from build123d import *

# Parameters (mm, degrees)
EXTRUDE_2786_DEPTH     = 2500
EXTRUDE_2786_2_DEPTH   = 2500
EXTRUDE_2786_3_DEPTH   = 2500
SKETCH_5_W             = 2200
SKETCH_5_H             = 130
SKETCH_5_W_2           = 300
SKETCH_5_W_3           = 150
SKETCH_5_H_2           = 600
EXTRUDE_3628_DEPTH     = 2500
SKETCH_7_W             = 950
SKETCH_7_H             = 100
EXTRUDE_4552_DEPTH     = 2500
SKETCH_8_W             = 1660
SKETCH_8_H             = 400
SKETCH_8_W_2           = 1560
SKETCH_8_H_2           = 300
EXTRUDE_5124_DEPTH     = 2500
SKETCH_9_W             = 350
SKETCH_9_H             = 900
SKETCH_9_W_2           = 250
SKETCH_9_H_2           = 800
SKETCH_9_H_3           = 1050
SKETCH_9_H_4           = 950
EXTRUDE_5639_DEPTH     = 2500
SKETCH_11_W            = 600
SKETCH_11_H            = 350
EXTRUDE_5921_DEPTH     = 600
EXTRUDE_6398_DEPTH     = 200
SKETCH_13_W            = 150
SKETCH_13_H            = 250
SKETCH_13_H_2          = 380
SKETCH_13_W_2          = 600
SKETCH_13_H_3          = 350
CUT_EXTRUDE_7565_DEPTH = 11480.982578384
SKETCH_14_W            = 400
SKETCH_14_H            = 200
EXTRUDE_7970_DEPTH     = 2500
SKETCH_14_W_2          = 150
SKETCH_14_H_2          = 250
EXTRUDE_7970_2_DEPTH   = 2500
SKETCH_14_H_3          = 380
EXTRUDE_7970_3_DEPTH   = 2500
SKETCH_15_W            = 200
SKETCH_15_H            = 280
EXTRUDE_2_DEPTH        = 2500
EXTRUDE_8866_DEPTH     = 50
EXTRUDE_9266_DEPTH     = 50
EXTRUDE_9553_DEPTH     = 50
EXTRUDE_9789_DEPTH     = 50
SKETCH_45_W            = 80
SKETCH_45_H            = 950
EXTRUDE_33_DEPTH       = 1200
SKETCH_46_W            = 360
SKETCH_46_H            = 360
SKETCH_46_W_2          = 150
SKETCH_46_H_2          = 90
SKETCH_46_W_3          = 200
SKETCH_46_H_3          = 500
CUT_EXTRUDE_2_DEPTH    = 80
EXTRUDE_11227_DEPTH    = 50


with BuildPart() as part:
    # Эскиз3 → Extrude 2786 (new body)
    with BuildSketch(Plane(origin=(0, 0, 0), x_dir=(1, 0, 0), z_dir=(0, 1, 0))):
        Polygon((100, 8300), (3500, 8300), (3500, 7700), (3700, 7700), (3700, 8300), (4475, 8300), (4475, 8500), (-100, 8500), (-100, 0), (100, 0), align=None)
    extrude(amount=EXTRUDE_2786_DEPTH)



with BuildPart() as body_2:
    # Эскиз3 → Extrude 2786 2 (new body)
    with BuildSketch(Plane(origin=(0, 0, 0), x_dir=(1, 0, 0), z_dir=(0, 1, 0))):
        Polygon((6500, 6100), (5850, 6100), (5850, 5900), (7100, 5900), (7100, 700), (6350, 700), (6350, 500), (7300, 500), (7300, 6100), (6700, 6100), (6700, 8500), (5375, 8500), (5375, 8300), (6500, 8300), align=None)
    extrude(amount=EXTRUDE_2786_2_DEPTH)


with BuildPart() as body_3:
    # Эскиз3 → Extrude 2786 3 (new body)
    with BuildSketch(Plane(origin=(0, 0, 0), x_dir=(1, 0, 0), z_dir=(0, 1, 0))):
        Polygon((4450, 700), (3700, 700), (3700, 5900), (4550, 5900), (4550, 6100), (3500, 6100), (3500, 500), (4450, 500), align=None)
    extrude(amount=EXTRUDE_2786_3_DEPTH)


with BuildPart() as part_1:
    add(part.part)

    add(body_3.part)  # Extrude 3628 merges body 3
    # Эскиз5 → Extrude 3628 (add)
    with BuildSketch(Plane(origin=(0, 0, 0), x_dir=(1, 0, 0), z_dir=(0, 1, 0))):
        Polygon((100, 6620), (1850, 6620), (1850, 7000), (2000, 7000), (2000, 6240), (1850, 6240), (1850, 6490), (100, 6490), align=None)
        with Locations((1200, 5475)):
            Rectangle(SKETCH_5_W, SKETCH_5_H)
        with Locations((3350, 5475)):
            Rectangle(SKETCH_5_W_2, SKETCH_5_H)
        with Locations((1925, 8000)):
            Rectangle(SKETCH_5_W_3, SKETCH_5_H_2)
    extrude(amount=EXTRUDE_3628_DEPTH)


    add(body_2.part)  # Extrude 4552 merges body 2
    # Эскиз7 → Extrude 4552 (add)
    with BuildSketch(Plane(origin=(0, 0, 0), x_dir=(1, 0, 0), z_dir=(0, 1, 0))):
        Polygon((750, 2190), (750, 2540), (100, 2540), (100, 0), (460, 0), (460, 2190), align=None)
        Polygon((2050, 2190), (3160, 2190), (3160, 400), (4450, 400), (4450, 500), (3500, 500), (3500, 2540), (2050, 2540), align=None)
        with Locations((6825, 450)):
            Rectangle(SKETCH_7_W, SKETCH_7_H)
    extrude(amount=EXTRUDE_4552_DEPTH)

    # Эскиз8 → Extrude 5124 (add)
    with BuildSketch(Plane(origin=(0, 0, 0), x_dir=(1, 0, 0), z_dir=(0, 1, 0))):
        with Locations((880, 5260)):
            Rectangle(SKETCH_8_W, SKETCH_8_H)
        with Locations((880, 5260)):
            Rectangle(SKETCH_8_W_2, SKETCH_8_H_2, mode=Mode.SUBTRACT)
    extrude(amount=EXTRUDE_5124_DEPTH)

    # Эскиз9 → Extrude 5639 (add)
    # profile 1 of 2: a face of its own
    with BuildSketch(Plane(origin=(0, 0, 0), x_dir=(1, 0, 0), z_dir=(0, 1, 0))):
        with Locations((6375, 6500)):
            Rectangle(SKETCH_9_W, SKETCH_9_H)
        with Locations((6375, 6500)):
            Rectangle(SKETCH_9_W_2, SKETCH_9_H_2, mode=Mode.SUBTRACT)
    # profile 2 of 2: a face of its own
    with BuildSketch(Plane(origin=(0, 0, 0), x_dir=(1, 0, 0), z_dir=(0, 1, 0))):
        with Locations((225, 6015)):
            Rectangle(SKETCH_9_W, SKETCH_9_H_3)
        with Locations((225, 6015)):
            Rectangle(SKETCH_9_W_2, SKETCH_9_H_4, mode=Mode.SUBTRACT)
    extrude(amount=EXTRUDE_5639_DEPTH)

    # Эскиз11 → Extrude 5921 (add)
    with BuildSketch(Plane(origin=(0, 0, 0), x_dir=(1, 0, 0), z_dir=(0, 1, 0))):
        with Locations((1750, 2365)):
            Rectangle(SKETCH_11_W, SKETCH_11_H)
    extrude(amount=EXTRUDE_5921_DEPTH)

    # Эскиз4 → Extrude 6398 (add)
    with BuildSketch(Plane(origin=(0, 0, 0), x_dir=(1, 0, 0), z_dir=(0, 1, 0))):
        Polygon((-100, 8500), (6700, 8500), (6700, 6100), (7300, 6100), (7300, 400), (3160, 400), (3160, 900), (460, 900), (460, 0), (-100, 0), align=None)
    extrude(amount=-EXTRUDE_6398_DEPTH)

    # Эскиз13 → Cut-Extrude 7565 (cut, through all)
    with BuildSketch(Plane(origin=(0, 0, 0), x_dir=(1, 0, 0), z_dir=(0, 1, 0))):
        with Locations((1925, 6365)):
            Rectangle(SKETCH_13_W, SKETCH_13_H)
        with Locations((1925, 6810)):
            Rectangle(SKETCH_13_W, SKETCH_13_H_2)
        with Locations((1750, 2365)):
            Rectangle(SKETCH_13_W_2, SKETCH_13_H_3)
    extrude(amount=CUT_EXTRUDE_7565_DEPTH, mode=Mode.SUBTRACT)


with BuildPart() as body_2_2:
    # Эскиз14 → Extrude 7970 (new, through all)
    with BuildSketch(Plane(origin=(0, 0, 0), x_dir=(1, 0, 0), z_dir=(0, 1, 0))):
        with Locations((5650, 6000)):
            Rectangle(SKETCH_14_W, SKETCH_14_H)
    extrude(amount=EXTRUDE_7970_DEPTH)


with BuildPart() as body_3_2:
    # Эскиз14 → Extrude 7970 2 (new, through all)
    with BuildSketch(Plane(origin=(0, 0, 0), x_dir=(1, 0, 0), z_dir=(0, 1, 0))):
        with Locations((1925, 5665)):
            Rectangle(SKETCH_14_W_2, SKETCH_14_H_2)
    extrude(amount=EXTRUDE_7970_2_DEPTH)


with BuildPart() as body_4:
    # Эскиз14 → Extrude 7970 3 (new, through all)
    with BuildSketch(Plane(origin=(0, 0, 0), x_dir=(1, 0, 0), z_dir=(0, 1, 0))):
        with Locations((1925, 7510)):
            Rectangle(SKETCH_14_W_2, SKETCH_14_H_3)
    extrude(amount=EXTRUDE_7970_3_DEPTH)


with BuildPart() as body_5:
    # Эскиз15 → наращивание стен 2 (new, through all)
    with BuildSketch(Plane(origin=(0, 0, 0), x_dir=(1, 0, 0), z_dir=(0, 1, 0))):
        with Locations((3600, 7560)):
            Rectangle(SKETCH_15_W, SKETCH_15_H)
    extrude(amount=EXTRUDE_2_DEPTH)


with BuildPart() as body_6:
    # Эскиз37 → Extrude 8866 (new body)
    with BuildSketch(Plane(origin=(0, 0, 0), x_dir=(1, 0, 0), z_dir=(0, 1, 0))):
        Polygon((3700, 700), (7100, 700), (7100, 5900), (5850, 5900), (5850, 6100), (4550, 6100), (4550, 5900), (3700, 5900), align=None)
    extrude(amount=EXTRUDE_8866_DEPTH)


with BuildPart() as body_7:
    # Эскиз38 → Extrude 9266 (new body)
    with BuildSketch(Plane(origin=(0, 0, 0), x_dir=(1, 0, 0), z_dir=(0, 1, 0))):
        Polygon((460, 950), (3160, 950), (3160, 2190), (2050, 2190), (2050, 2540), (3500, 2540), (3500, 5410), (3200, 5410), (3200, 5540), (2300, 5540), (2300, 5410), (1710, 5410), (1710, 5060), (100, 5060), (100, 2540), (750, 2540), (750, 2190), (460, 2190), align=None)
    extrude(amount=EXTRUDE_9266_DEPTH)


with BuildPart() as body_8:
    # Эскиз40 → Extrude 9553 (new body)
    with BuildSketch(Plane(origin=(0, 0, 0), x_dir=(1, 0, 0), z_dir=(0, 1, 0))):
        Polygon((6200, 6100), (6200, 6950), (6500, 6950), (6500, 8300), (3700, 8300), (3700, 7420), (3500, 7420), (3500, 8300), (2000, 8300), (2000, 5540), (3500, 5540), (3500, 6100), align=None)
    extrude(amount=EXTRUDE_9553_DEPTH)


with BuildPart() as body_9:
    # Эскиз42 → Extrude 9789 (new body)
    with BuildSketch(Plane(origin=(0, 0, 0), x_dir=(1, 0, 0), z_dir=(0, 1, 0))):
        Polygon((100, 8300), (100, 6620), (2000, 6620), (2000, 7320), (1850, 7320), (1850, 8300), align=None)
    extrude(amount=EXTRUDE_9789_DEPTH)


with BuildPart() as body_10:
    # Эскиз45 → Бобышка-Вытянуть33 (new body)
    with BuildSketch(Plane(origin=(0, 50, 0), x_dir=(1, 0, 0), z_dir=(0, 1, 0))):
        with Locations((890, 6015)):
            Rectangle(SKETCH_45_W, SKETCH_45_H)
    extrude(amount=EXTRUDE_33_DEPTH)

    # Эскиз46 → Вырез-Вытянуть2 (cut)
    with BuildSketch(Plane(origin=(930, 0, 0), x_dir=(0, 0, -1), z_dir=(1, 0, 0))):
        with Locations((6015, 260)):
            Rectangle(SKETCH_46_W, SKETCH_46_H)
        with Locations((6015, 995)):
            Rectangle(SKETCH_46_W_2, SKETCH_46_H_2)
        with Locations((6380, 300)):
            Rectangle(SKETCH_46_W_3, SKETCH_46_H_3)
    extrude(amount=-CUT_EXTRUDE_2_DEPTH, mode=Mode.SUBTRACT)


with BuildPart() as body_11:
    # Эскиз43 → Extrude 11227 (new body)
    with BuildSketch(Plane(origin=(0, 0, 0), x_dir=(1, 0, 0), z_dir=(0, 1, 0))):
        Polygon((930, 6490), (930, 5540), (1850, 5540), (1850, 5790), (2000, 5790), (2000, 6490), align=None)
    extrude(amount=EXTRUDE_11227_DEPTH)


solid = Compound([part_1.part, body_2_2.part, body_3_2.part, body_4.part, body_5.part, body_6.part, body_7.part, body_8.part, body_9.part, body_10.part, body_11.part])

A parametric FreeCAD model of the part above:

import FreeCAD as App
import Part
import Sketcher


def add_polygon(sketch, points):
    """Adds a closed chain of lines whose ends are joined by coincident constraints."""
    first, n = sketch.GeometryCount, len(points)
    for a, b in zip(points, points[1:] + points[:1]):
        sketch.addGeometry(Part.LineSegment(App.Vector(*a, 0), App.Vector(*b, 0)), False)
    for i in range(n):
        sketch.addConstraint(Sketcher.Constraint("Coincident", first + i, 2, first + (i + 1) % n, 1))

doc = App.newDocument("Part")
body = doc.addObject("PartDesign::Body", "Body")

# Sketch on XZ plane
sketch1 = body.newObject("Sketcher::SketchObject", "Sketch")
sketch1.AttachmentSupport = (doc.getObject("XZ_Plane"), [""])
sketch1.MapMode = "FlatFace"
add_polygon(sketch1, [(100, -8300), (3500, -8300), (3500, -7700), (3700, -7700), (3700, -8300), (4475, -8300), (4475, -8500), (-100, -8500), (-100, 0), (100, 0)])  # lines 0-9
sketch1.addConstraint([
    Sketcher.Constraint("Horizontal", 0),
    Sketcher.Constraint("Vertical", 1),
    Sketcher.Constraint("Horizontal", 2),
    Sketcher.Constraint("Vertical", 3),
    Sketcher.Constraint("Horizontal", 4),
    Sketcher.Constraint("Vertical", 5),
    Sketcher.Constraint("Horizontal", 6),
    Sketcher.Constraint("Vertical", 7),
    Sketcher.Constraint("Horizontal", 8),
    Sketcher.Constraint("Vertical", 9),
    Sketcher.Constraint("Symmetric", 7, 2, 8, 2, -1, 1),
    Sketcher.Constraint("Horizontal", 0, 2, 3, 2),
    Sketcher.Constraint("Equal", 2, 8),
    Sketcher.Constraint("Equal", 8, 5),
    Sketcher.Constraint("DistanceX", 0, 1, 0, 2, 3400.0),
    Sketcher.Constraint("DistanceX", 2, 1, 2, 2, 200.0),
    Sketcher.Constraint("DistanceX", 4, 1, 4, 2, 775.0),
    Sketcher.Constraint("DistanceY", 1, 1, 1, 2, 600.0),
    Sketcher.Constraint("DistanceY", 7, 1, 7, 2, 8500.0),
])
pad1 = body.newObject("PartDesign::Pad", "Pad")
pad1.Profile = sketch1
pad1.Length = 2500
pad1.Reversed = True
body2 = doc.addObject("PartDesign::Body", "Body001")

# Sketch on XZ plane
sketch2 = body2.newObject("Sketcher::SketchObject", "Sketch001")
sketch2.AttachmentSupport = (doc.getObject("XZ_Plane001"), [""])
sketch2.MapMode = "FlatFace"
add_polygon(sketch2, [(6500, -6100), (5850, -6100), (5850, -5900), (7100, -5900), (7100, -700), (6350, -700), (6350, -500), (7300, -500), (7300, -6100), (6700, -6100), (6700, -8500), (5375, -8500), (5375, -8300), (6500, -8300)])  # lines 0-13
sketch2.addConstraint([
    Sketcher.Constraint("Horizontal", 0),
    Sketcher.Constraint("Vertical", 1),
    Sketcher.Constraint("Horizontal", 2),
    Sketcher.Constraint("Vertical", 3),
    Sketcher.Constraint("Horizontal", 4),
    Sketcher.Constraint("Vertical", 5),
    Sketcher.Constraint("Horizontal", 6),
    Sketcher.Constraint("Vertical", 7),
    Sketcher.Constraint("Horizontal", 8),
    Sketcher.Constraint("Vertical", 9),
    Sketcher.Constraint("Horizontal", 10),
    Sketcher.Constraint("Vertical", 11),
    Sketcher.Constraint("Horizontal", 12),
    Sketcher.Constraint("Vertical", 13),
    Sketcher.Constraint("Horizontal", 0, 2, 7, 2),
    Sketcher.Constraint("Equal", 1, 5),
    Sketcher.Constraint("Equal", 5, 11),
    Sketcher.Constraint("DistanceX", 0, 2, 0, 1, 650.0),
    Sketcher.Constraint("DistanceX", 2, 1, 2, 2, 1250.0),
    Sketcher.Constraint("DistanceX", 4, 2, 4, 1, 750.0),
    Sketcher.Constraint("DistanceX", 6, 1, 6, 2, 950.0),
    Sketcher.Constraint("DistanceX", 8, 2, 8, 1, 600.0),
    Sketcher.Constraint("DistanceX", 10, 2, 10, 1, 1325.0),
    Sketcher.Constraint("DistanceY", 1, 1, 1, 2, 200.0),
    Sketcher.Constraint("DistanceY", 3, 1, 3, 2, 5200.0),
    Sketcher.Constraint("DistanceY", 9, 2, 9, 1, 2400.0),
    Sketcher.Constraint("DistanceX", -1, 1, 0, 2, 5850.0),
    Sketcher.Constraint("DistanceY", 0, 2, -1, 1, 6100.0),
])
pad2 = body2.newObject("PartDesign::Pad", "Pad001")
pad2.Profile = sketch2
pad2.Length = 2500
pad2.Reversed = True
body3 = doc.addObject("PartDesign::Body", "Body002")

# Sketch on XZ plane
sketch3 = body3.newObject("Sketcher::SketchObject", "Sketch002")
sketch3.AttachmentSupport = (doc.getObject("XZ_Plane002"), [""])
sketch3.MapMode = "FlatFace"
add_polygon(sketch3, [(4450, -700), (3700, -700), (3700, -5900), (4550, -5900), (4550, -6100), (3500, -6100), (3500, -500), (4450, -500)])  # lines 0-7
sketch3.addConstraint([
    Sketcher.Constraint("Horizontal", 0),
    Sketcher.Constraint("Vertical", 1),
    Sketcher.Constraint("Horizontal", 2),
    Sketcher.Constraint("Vertical", 3),
    Sketcher.Constraint("Horizontal", 4),
    Sketcher.Constraint("Vertical", 5),
    Sketcher.Constraint("Horizontal", 6),
    Sketcher.Constraint("Vertical", 7),
    Sketcher.Constraint("Equal", 3, 7),
    Sketcher.Constraint("DistanceX", 0, 2, 0, 1, 750.0),
    Sketcher.Constraint("DistanceX", 2, 1, 2, 2, 850.0),
    Sketcher.Constraint("DistanceX", 4, 2, 4, 1, 1050.0),
    Sketcher.Constraint("DistanceY", 1, 2, 1, 1, 5200.0),
    Sketcher.Constraint("DistanceY", 3, 2, 3, 1, 200.0),
    Sketcher.Constraint("DistanceX", -1, 1, 0, 2, 3700.0),
    Sketcher.Constraint("DistanceY", 0, 2, -1, 1, 700.0),
])
pad3 = body3.newObject("PartDesign::Pad", "Pad002")
pad3.Profile = sketch3
pad3.Length = 2500
pad3.Reversed = True
body.AllowCompound = True
doc.recompute()

boolean = body.newObject("PartDesign::Boolean", "Boolean")
boolean.Type = "Fuse"
boolean.addObjects([body3])

# Sketch on XZ plane
sketch4 = body.newObject("Sketcher::SketchObject", "Sketch003")
sketch4.AttachmentSupport = (doc.getObject("XZ_Plane"), [""])
sketch4.MapMode = "FlatFace"
add_polygon(sketch4, [(1850, -6620), (100, -6620), (100, -6490), (1850, -6490), (1850, -6240), (2000, -6240), (2000, -7000), (1850, -7000)])  # lines 0-7
add_polygon(sketch4, [(100, -5540), (100, -5410), (2300, -5410), (2300, -5540)])  # lines 8-11
add_polygon(sketch4, [(3200, -5540), (3200, -5410), (3500, -5410), (3500, -5540)])  # lines 12-15
add_polygon(sketch4, [(1850, -8300), (1850, -7700), (2000, -7700), (2000, -8300)])  # lines 16-19
sketch4.addConstraint([
    Sketcher.Constraint("Horizontal", 0),
    Sketcher.Constraint("Vertical", 1),
    Sketcher.Constraint("Horizontal", 2),
    Sketcher.Constraint("Vertical", 3),
    Sketcher.Constraint("Horizontal", 4),
    Sketcher.Constraint("Vertical", 5),
    Sketcher.Constraint("Horizontal", 6),
    Sketcher.Constraint("Vertical", 7),
    Sketcher.Constraint("Vertical", 8),
    Sketcher.Constraint("Horizontal", 9),
    Sketcher.Constraint("Vertical", 10),
    Sketcher.Constraint("Horizontal", 11),
    Sketcher.Constraint("Vertical", 12),
    Sketcher.Constraint("Horizontal", 13),
    Sketcher.Constraint("Vertical", 14),
    Sketcher.Constraint("Horizontal", 15),
    Sketcher.Constraint("Vertical", 16),
    Sketcher.Constraint("Horizontal", 17),
    Sketcher.Constraint("Vertical", 18),
    Sketcher.Constraint("Horizontal", 19),
    Sketcher.Constraint("Horizontal", 9, 2, 12, 2),
    Sketcher.Constraint("Horizontal", 11, 2, 14, 2),
    Sketcher.Constraint("Vertical", 3, 2, 6, 2),
    Sketcher.Constraint("Vertical", 1, 2, 8, 2),
    Sketcher.Constraint("Vertical", 7, 2, 16, 2),
    Sketcher.Constraint("Vertical", 5, 2, 17, 2),
    Sketcher.Constraint("Equal", 1, 8),
    Sketcher.Constraint("DistanceX", 0, 2, 0, 1, 1750.0),
    Sketcher.Constraint("DistanceX", 4, 1, 4, 2, 150.0),
    Sketcher.Constraint("DistanceX", 9, 1, 9, 2, 2200.0),
    Sketcher.Constraint("DistanceX", 13, 1, 13, 2, 300.0),
    Sketcher.Constraint("DistanceY", 1, 1, 1, 2, 130.0),
    Sketcher.Constraint("DistanceY", 3, 1, 3, 2, 250.0),
    Sketcher.Constraint("DistanceY", 5, 2, 5, 1, 760.0),
    Sketcher.Constraint("DistanceY", 16, 1, 16, 2, 600.0),
    Sketcher.Constraint("DistanceX", -1, 1, 0, 2, 100.0),
    Sketcher.Constraint("DistanceY", 0, 2, -1, 1, 6620.0),
    Sketcher.Constraint("DistanceY", 8, 2, -1, 1, 5410.0),
    Sketcher.Constraint("DistanceX", -1, 1, 12, 2, 3200.0),
    Sketcher.Constraint("DistanceY", 16, 2, -1, 1, 7700.0),
])
pad4 = body.newObject("PartDesign::Pad", "Pad003")
pad4.Profile = sketch4
pad4.Length = 2500
pad4.Reversed = True
doc.recompute()

boolean2 = body.newObject("PartDesign::Boolean", "Boolean001")
boolean2.Type = "Fuse"
boolean2.addObjects([body2])

# Sketch on XZ plane
sketch5 = body.newObject("Sketcher::SketchObject", "Sketch004")
sketch5.AttachmentSupport = (doc.getObject("XZ_Plane"), [""])
sketch5.MapMode = "FlatFace"
add_polygon(sketch5, [(750, -2190), (750, -2540), (100, -2540), (100, 0), (460, 0), (460, -2190)])  # lines 0-5
add_polygon(sketch5, [(2050, -2190), (3160, -2190), (3160, -400), (4450, -400), (4450, -500), (3500, -500), (3500, -2540), (2050, -2540)])  # lines 6-13
add_polygon(sketch5, [(6350, -500), (6350, -400), (7300, -400), (7300, -500)])  # lines 14-17
sketch5.addConstraint([
    Sketcher.Constraint("Vertical", 0),
    Sketcher.Constraint("Horizontal", 1),
    Sketcher.Constraint("Vertical", 2),
    Sketcher.Constraint("Horizontal", 3),
    Sketcher.Constraint("Vertical", 4),
    Sketcher.Constraint("Horizontal", 5),
    Sketcher.Constraint("Horizontal", 6),
    Sketcher.Constraint("Vertical", 7),
    Sketcher.Constraint("Horizontal", 8),
    Sketcher.Constraint("Vertical", 9),
    Sketcher.Constraint("Horizontal", 10),
    Sketcher.Constraint("Vertical", 11),
    Sketcher.Constraint("Horizontal", 12),
    Sketcher.Constraint("Vertical", 13),
    Sketcher.Constraint("Vertical", 14),
    Sketcher.Constraint("Horizontal", 15),
    Sketcher.Constraint("Vertical", 16),
    Sketcher.Constraint("Horizontal", 17),
    Sketcher.Constraint("PointOnObject", 2, 2, -1),
    Sketcher.Constraint("Horizontal", 5, 2, 6, 2),
    Sketcher.Constraint("Horizontal", 1, 2, 11, 2),
    Sketcher.Constraint("Horizontal", 8, 2, 14, 2),
    Sketcher.Constraint("Horizontal", 10, 2, 16, 2),
    Sketcher.Constraint("Equal", 10, 15),
    Sketcher.Constraint("DistanceX", 1, 2, 1, 1, 650.0),
    Sketcher.Constraint("DistanceX", 3, 1, 3, 2, 360.0),
    Sketcher.Constraint("DistanceX", 6, 1, 6, 2, 1110.0),
    Sketcher.Constraint("DistanceX", 8, 1, 8, 2, 1290.0),
    Sketcher.Constraint("DistanceX", 10, 2, 10, 1, 950.0),
    Sketcher.Constraint("DistanceY", 0, 2, 0, 1, 350.0),
    Sketcher.Constraint("DistanceY", 2, 1, 2, 2, 2540.0),
    Sketcher.Constraint("DistanceY", 7, 1, 7, 2, 1790.0),
    Sketcher.Constraint("DistanceY", 9, 2, 9, 1, 100.0),
    Sketcher.Constraint("DistanceX", -1, 1, 0, 2, 750.0),
    Sketcher.Constraint("DistanceX", -1, 1, 6, 2, 3160.0),
    Sketcher.Constraint("DistanceX", -1, 1, 14, 2, 6350.0),
])
pad5 = body.newObject("PartDesign::Pad", "Pad004")
pad5.Profile = sketch5
pad5.Length = 2500
pad5.Reversed = True

# Sketch on XZ plane
sketch6 = body.newObject("Sketcher::SketchObject", "Sketch005")
sketch6.AttachmentSupport = (doc.getObject("XZ_Plane"), [""])
sketch6.MapMode = "FlatFace"
add_polygon(sketch6, [(50, -5460), (50, -5060), (1710, -5060), (1710, -5460)])  # lines 0-3
add_polygon(sketch6, [(1660, -5110), (100, -5110), (100, -5410), (1660, -5410)])  # lines 4-7
sketch6.addConstraint([
    Sketcher.Constraint("Vertical", 0),
    Sketcher.Constraint("Horizontal", 1),
    Sketcher.Constraint("Vertical", 2),
    Sketcher.Constraint("Horizontal", 3),
    Sketcher.Constraint("Horizontal", 4),
    Sketcher.Constraint("Vertical", 5),
    Sketcher.Constraint("Horizontal", 6),
    Sketcher.Constraint("Vertical", 7),
    Sketcher.Constraint("DistanceX", 1, 1, 1, 2, 1660.0),
    Sketcher.Constraint("DistanceX", 4, 2, 4, 1, 1560.0),
    Sketcher.Constraint("DistanceY", 0, 1, 0, 2, 400.0),
    Sketcher.Constraint("DistanceY", 5, 2, 5, 1, 300.0),
    Sketcher.Constraint("DistanceX", -1, 1, 0, 2, 50.0),
    Sketcher.Constraint("DistanceY", 0, 2, -1, 1, 5060.0),
    Sketcher.Constraint("DistanceX", -1, 1, 4, 2, 100.0),
    Sketcher.Constraint("DistanceY", 4, 2, -1, 1, 5110.0),
])
pad6 = body.newObject("PartDesign::Pad", "Pad005")
pad6.Profile = sketch6
pad6.Length = 2500
pad6.Reversed = True

# Sketch on XZ plane
sketch7 = body.newObject("Sketcher::SketchObject", "Sketch006")
sketch7.AttachmentSupport = (doc.getObject("XZ_Plane"), [""])
sketch7.MapMode = "FlatFace"
add_polygon(sketch7, [(6200, -6950), (6200, -6050), (6550, -6050), (6550, -6950)])  # lines 0-3
add_polygon(sketch7, [(6500, -6100), (6250, -6100), (6250, -6900), (6500, -6900)])  # lines 4-7
add_polygon(sketch7, [(50, -6540), (50, -5490), (400, -5490), (400, -6540)])  # lines 8-11
add_polygon(sketch7, [(350, -5540), (100, -5540), (100, -6490), (350, -6490)])  # lines 12-15
sketch7.addConstraint([
    Sketcher.Constraint("Vertical", 0),
    Sketcher.Constraint("Horizontal", 1),
    Sketcher.Constraint("Vertical", 2),
    Sketcher.Constraint("Horizontal", 3),
    Sketcher.Constraint("Horizontal", 4),
    Sketcher.Constraint("Vertical", 5),
    Sketcher.Constraint("Horizontal", 6),
    Sketcher.Constraint("Vertical", 7),
    Sketcher.Constraint("Vertical", 8),
    Sketcher.Constraint("Horizontal", 9),
    Sketcher.Constraint("Vertical", 10),
    Sketcher.Constraint("Horizontal", 11),
    Sketcher.Constraint("Horizontal", 12),
    Sketcher.Constraint("Vertical", 13),
    Sketcher.Constraint("Horizontal", 14),
    Sketcher.Constraint("Vertical", 15),
    Sketcher.Constraint("Equal", 3, 9),
    Sketcher.Constraint("Equal", 6, 12),
    Sketcher.Constraint("DistanceX", 1, 1, 1, 2, 350.0),
    Sketcher.Constraint("DistanceX", 4, 2, 4, 1, 250.0),
    Sketcher.Constraint("DistanceY", 0, 1, 0, 2, 900.0),
    Sketcher.Constraint("DistanceY", 5, 2, 5, 1, 800.0),
    Sketcher.Constraint("DistanceY", 8, 1, 8, 2, 1050.0),
    Sketcher.Constraint("DistanceY", 13, 2, 13, 1, 950.0),
    Sketcher.Constraint("DistanceX", -1, 1, 0, 2, 6200.0),
    Sketcher.Constraint("DistanceY", 0, 2, -1, 1, 6050.0),
    Sketcher.Constraint("DistanceX", -1, 1, 4, 2, 6250.0),
    Sketcher.Constraint("DistanceY", 4, 2, -1, 1, 6100.0),
    Sketcher.Constraint("DistanceX", -1, 1, 8, 2, 50.0),
    Sketcher.Constraint("DistanceY", 8, 2, -1, 1, 5490.0),
    Sketcher.Constraint("DistanceX", -1, 1, 12, 2, 100.0),
    Sketcher.Constraint("DistanceY", 12, 2, -1, 1, 5540.0),
])
pad7 = body.newObject("PartDesign::Pad", "Pad006")
pad7.Profile = sketch7
pad7.Length = 2500
pad7.Reversed = True

# Sketch on XZ plane
sketch8 = body.newObject("Sketcher::SketchObject", "Sketch007")
sketch8.AttachmentSupport = (doc.getObject("XZ_Plane"), [""])
sketch8.MapMode = "FlatFace"
add_polygon(sketch8, [(1450, -2540), (1450, -2190), (2050, -2190), (2050, -2540)])  # lines 0-3
sketch8.addConstraint([
    Sketcher.Constraint("Vertical", 0),
    Sketcher.Constraint("Horizontal", 1),
    Sketcher.Constraint("Vertical", 2),
    Sketcher.Constraint("Horizontal", 3),
    Sketcher.Constraint("DistanceX", 1, 1, 1, 2, 600.0),
    Sketcher.Constraint("DistanceY", 0, 1, 0, 2, 350.0),
    Sketcher.Constraint("DistanceX", -1, 1, 0, 2, 1450.0),
    Sketcher.Constraint("DistanceY", 0, 2, -1, 1, 2190.0),
])
pad8 = body.newObject("PartDesign::Pad", "Pad007")
pad8.Profile = sketch8
pad8.Length = 600
pad8.Reversed = True

# Sketch on XZ plane
sketch9 = body.newObject("Sketcher::SketchObject", "Sketch008")
sketch9.AttachmentSupport = (doc.getObject("XZ_Plane"), [""])
sketch9.MapMode = "FlatFace"
add_polygon(sketch9, [(6700, -8500), (-100, -8500), (-100, 0), (460, 0), (460, -900), (3160, -900), (3160, -400), (7300, -400), (7300, -6100), (6700, -6100)])  # lines 0-9
sketch9.addConstraint([
    Sketcher.Constraint("Horizontal", 0),
    Sketcher.Constraint("Vertical", 1),
    Sketcher.Constraint("Horizontal", 2),
    Sketcher.Constraint("Vertical", 3),
    Sketcher.Constraint("Horizontal", 4),
    Sketcher.Constraint("Vertical", 5),
    Sketcher.Constraint("Horizontal", 6),
    Sketcher.Constraint("Vertical", 7),
    Sketcher.Constraint("Horizontal", 8),
    Sketcher.Constraint("Vertical", 9),
    Sketcher.Constraint("PointOnObject", 1, 2, -1),
    Sketcher.Constraint("DistanceX", 0, 2, 0, 1, 6800.0),
    Sketcher.Constraint("DistanceX", 2, 1, 2, 2, 560.0),
    Sketcher.Constraint("DistanceX", 4, 1, 4, 2, 2700.0),
    Sketcher.Constraint("DistanceX", 6, 1, 6, 2, 4140.0),
    Sketcher.Constraint("DistanceY", 1, 1, 1, 2, 8500.0),
    Sketcher.Constraint("DistanceY", 3, 2, 3, 1, 900.0),
    Sketcher.Constraint("DistanceY", 5, 1, 5, 2, 500.0),
    Sketcher.Constraint("DistanceY", 7, 2, 7, 1, 5700.0),
    Sketcher.Constraint("DistanceX", 0, 2, -1, 1, 100.0),
])
pad9 = body.newObject("PartDesign::Pad", "Pad008")
pad9.Profile = sketch9
pad9.Length = 200

# Sketch on XZ plane
sketch10 = body.newObject("Sketcher::SketchObject", "Sketch009")
sketch10.AttachmentSupport = (doc.getObject("XZ_Plane"), [""])
sketch10.MapMode = "FlatFace"
add_polygon(sketch10, [(1850, -6490), (1850, -6240), (2000, -6240), (2000, -6490)])  # lines 0-3
add_polygon(sketch10, [(1850, -7000), (1850, -6620), (2000, -6620), (2000, -7000)])  # lines 4-7
add_polygon(sketch10, [(1450, -2540), (1450, -2190), (2050, -2190), (2050, -2540)])  # lines 8-11
sketch10.addConstraint([
    Sketcher.Constraint("Vertical", 0),
    Sketcher.Constraint("Horizontal", 1),
    Sketcher.Constraint("Vertical", 2),
    Sketcher.Constraint("Horizontal", 3),
    Sketcher.Constraint("Vertical", 4),
    Sketcher.Constraint("Horizontal", 5),
    Sketcher.Constraint("Vertical", 6),
    Sketcher.Constraint("Horizontal", 7),
    Sketcher.Constraint("Vertical", 8),
    Sketcher.Constraint("Horizontal", 9),
    Sketcher.Constraint("Vertical", 10),
    Sketcher.Constraint("Horizontal", 11),
    Sketcher.Constraint("Vertical", 3, 2, 4, 2),
    Sketcher.Constraint("Vertical", 2, 2, 5, 2),
    Sketcher.Constraint("DistanceX", 1, 1, 1, 2, 150.0),
    Sketcher.Constraint("DistanceX", 9, 1, 9, 2, 600.0),
    Sketcher.Constraint("DistanceY", 0, 1, 0, 2, 250.0),
    Sketcher.Constraint("DistanceY", 4, 1, 4, 2, 380.0),
    Sketcher.Constraint("DistanceY", 8, 1, 8, 2, 350.0),
    Sketcher.Constraint("DistanceX", -1, 1, 0, 2, 1850.0),
    Sketcher.Constraint("DistanceY", 0, 2, -1, 1, 6240.0),
    Sketcher.Constraint("DistanceY", 4, 2, -1, 1, 6620.0),
    Sketcher.Constraint("DistanceX", -1, 1, 8, 2, 1450.0),
    Sketcher.Constraint("DistanceY", 8, 2, -1, 1, 2190.0),
])
pocket1 = body.newObject("PartDesign::Pocket", "Pocket")
pocket1.Profile = sketch10
pocket1.Type = "ThroughAll"
body4 = doc.addObject("PartDesign::Body", "Body003")

# Sketch on XZ plane
sketch11 = body4.newObject("Sketcher::SketchObject", "Sketch010")
sketch11.AttachmentSupport = (doc.getObject("XZ_Plane003"), [""])
sketch11.MapMode = "FlatFace"
add_polygon(sketch11, [(5450, -6100), (5450, -5900), (5850, -5900), (5850, -6100)])  # lines 0-3
sketch11.addConstraint([
    Sketcher.Constraint("Vertical", 0),
    Sketcher.Constraint("Horizontal", 1),
    Sketcher.Constraint("Vertical", 2),
    Sketcher.Constraint("Horizontal", 3),
    Sketcher.Constraint("DistanceX", 1, 1, 1, 2, 400.0),
    Sketcher.Constraint("DistanceY", 0, 1, 0, 2, 200.0),
    Sketcher.Constraint("DistanceX", -1, 1, 0, 2, 5450.0),
    Sketcher.Constraint("DistanceY", 0, 2, -1, 1, 5900.0),
])
pad10 = body4.newObject("PartDesign::Pad", "Pad009")
pad10.Profile = sketch11
pad10.Length = 2500
pad10.Reversed = True
body5 = doc.addObject("PartDesign::Body", "Body004")

# Sketch on XZ plane
sketch12 = body5.newObject("Sketcher::SketchObject", "Sketch011")
sketch12.AttachmentSupport = (doc.getObject("XZ_Plane004"), [""])
sketch12.MapMode = "FlatFace"
add_polygon(sketch12, [(1850, -5790), (1850, -5540), (2000, -5540), (2000, -5790)])  # lines 0-3
sketch12.addConstraint([
    Sketcher.Constraint("Vertical", 0),
    Sketcher.Constraint("Horizontal", 1),
    Sketcher.Constraint("Vertical", 2),
    Sketcher.Constraint("Horizontal", 3),
    Sketcher.Constraint("DistanceX", 1, 1, 1, 2, 150.0),
    Sketcher.Constraint("DistanceY", 0, 1, 0, 2, 250.0),
    Sketcher.Constraint("DistanceX", -1, 1, 0, 2, 1850.0),
    Sketcher.Constraint("DistanceY", 0, 2, -1, 1, 5540.0),
])
pad11 = body5.newObject("PartDesign::Pad", "Pad010")
pad11.Profile = sketch12
pad11.Length = 2500
pad11.Reversed = True
body6 = doc.addObject("PartDesign::Body", "Body005")

# Sketch on XZ plane
sketch13 = body6.newObject("Sketcher::SketchObject", "Sketch012")
sketch13.AttachmentSupport = (doc.getObject("XZ_Plane005"), [""])
sketch13.MapMode = "FlatFace"
add_polygon(sketch13, [(1850, -7700), (1850, -7320), (2000, -7320), (2000, -7700)])  # lines 0-3
sketch13.addConstraint([
    Sketcher.Constraint("Vertical", 0),
    Sketcher.Constraint("Horizontal", 1),
    Sketcher.Constraint("Vertical", 2),
    Sketcher.Constraint("Horizontal", 3),
    Sketcher.Constraint("DistanceX", 1, 1, 1, 2, 150.0),
    Sketcher.Constraint("DistanceY", 0, 1, 0, 2, 380.0),
    Sketcher.Constraint("DistanceX", -1, 1, 0, 2, 1850.0),
    Sketcher.Constraint("DistanceY", 0, 2, -1, 1, 7320.0),
])
pad12 = body6.newObject("PartDesign::Pad", "Pad011")
pad12.Profile = sketch13
pad12.Length = 2500
pad12.Reversed = True
body7 = doc.addObject("PartDesign::Body", "Body006")

# Sketch on XZ plane
sketch14 = body7.newObject("Sketcher::SketchObject", "Sketch013")
sketch14.AttachmentSupport = (doc.getObject("XZ_Plane006"), [""])
sketch14.MapMode = "FlatFace"
add_polygon(sketch14, [(3500, -7700), (3500, -7420), (3700, -7420), (3700, -7700)])  # lines 0-3
sketch14.addConstraint([
    Sketcher.Constraint("Vertical", 0),
    Sketcher.Constraint("Horizontal", 1),
    Sketcher.Constraint("Vertical", 2),
    Sketcher.Constraint("Horizontal", 3),
    Sketcher.Constraint("DistanceX", 1, 1, 1, 2, 200.0),
    Sketcher.Constraint("DistanceY", 0, 1, 0, 2, 280.0),
    Sketcher.Constraint("DistanceX", -1, 1, 0, 2, 3500.0),
    Sketcher.Constraint("DistanceY", 0, 2, -1, 1, 7420.0),
])
pad13 = body7.newObject("PartDesign::Pad", "Pad012")
pad13.Profile = sketch14
pad13.Length = 2500
pad13.Reversed = True
body8 = doc.addObject("PartDesign::Body", "Body007")

# Sketch on XZ plane
sketch15 = body8.newObject("Sketcher::SketchObject", "Sketch014")
sketch15.AttachmentSupport = (doc.getObject("XZ_Plane007"), [""])
sketch15.MapMode = "FlatFace"
add_polygon(sketch15, [(3700, -700), (7100, -700), (7100, -5900), (5850, -5900), (5850, -6100), (4550, -6100), (4550, -5900), (3700, -5900)])  # lines 0-7
sketch15.addConstraint([
    Sketcher.Constraint("Horizontal", 0),
    Sketcher.Constraint("Vertical", 1),
    Sketcher.Constraint("Horizontal", 2),
    Sketcher.Constraint("Vertical", 3),
    Sketcher.Constraint("Horizontal", 4),
    Sketcher.Constraint("Vertical", 5),
    Sketcher.Constraint("Horizontal", 6),
    Sketcher.Constraint("Vertical", 7),
    Sketcher.Constraint("Horizontal", 2, 2, 5, 2),
    Sketcher.Constraint("DistanceX", 0, 1, 0, 2, 3400.0),
    Sketcher.Constraint("DistanceX", 2, 2, 2, 1, 1250.0),
    Sketcher.Constraint("DistanceX", 4, 2, 4, 1, 1300.0),
    Sketcher.Constraint("DistanceY", 1, 2, 1, 1, 5200.0),
    Sketcher.Constraint("DistanceY", 3, 2, 3, 1, 200.0),
    Sketcher.Constraint("DistanceX", -1, 1, 0, 2, 7100.0),
    Sketcher.Constraint("DistanceY", 0, 2, -1, 1, 700.0),
])
pad14 = body8.newObject("PartDesign::Pad", "Pad013")
pad14.Profile = sketch15
pad14.Length = 50
pad14.Reversed = True
body9 = doc.addObject("PartDesign::Body", "Body008")

# Sketch on XZ plane
sketch16 = body9.newObject("Sketcher::SketchObject", "Sketch015")
sketch16.AttachmentSupport = (doc.getObject("XZ_Plane008"), [""])
sketch16.MapMode = "FlatFace"
add_polygon(sketch16, [(460, -950), (3160, -950), (3160, -2190), (2050, -2190), (2050, -2540), (3500, -2540), (3500, -5410), (3200, -5410), (3200, -5540), (2300, -5540), (2300, -5410), (1710, -5410), (1710, -5060), (100, -5060), (100, -2540), (750, -2540), (750, -2190), (460, -2190)])  # lines 0-17
sketch16.addConstraint([
    Sketcher.Constraint("Horizontal", 0),
    Sketcher.Constraint("Vertical", 1),
    Sketcher.Constraint("Horizontal", 2),
    Sketcher.Constraint("Vertical", 3),
    Sketcher.Constraint("Horizontal", 4),
    Sketcher.Constraint("Vertical", 5),
    Sketcher.Constraint("Horizontal", 6),
    Sketcher.Constraint("Vertical", 7),
    Sketcher.Constraint("Horizontal", 8),
    Sketcher.Constraint("Vertical", 9),
    Sketcher.Constraint("Horizontal", 10),
    Sketcher.Constraint("Vertical", 11),
    Sketcher.Constraint("Horizontal", 12),
    Sketcher.Constraint("Vertical", 13),
    Sketcher.Constraint("Horizontal", 14),
    Sketcher.Constraint("Vertical", 15),
    Sketcher.Constraint("Horizontal", 16),
    Sketcher.Constraint("Vertical", 17),
    Sketcher.Constraint("Horizontal", 6, 2, 9, 2),
    Sketcher.Constraint("Horizontal", 4, 2, 13, 2),
    Sketcher.Constraint("Horizontal", 2, 2, 15, 2),
    Sketcher.Constraint("Equal", 3, 11),
    Sketcher.Constraint("DistanceX", 0, 1, 0, 2, 2700.0),
    Sketcher.Constraint("DistanceX", 2, 2, 2, 1, 1110.0),
    Sketcher.Constraint("DistanceX", 4, 1, 4, 2, 1450.0),
    Sketcher.Constraint("DistanceX", 6, 2, 6, 1, 300.0),
    Sketcher.Constraint("DistanceX", 8, 2, 8, 1, 900.0),
    Sketcher.Constraint("DistanceX", 10, 2, 10, 1, 590.0),
    Sketcher.Constraint("DistanceX", 12, 2, 12, 1, 1610.0),
    Sketcher.Constraint("DistanceX", 14, 1, 14, 2, 650.0),
    Sketcher.Constraint("DistanceY", 1, 2, 1, 1, 1240.0),
    Sketcher.Constraint("DistanceY", 3, 2, 3, 1, 350.0),
    Sketcher.Constraint("DistanceY", 5, 2, 5, 1, 2870.0),
    Sketcher.Constraint("DistanceY", 7, 2, 7, 1, 130.0),
    Sketcher.Constraint("DistanceX", -1, 1, 0, 2, 3160.0),
    Sketcher.Constraint("DistanceY", 0, 2, -1, 1, 950.0),
])
pad15 = body9.newObject("PartDesign::Pad", "Pad014")
pad15.Profile = sketch16
pad15.Length = 50
pad15.Reversed = True
body10 = doc.addObject("PartDesign::Body", "Body009")

# Sketch on XZ plane
sketch17 = body10.newObject("Sketcher::SketchObject", "Sketch016")
sketch17.AttachmentSupport = (doc.getObject("XZ_Plane009"), [""])
sketch17.MapMode = "FlatFace"
add_polygon(sketch17, [(6200, -6100), (6200, -6950), (6500, -6950), (6500, -8300), (3700, -8300), (3700, -7420), (3500, -7420), (3500, -8300), (2000, -8300), (2000, -5540), (3500, -5540), (3500, -6100)])  # lines 0-11
sketch17.addConstraint([
    Sketcher.Constraint("Vertical", 0),
    Sketcher.Constraint("Horizontal", 1),
    Sketcher.Constraint("Vertical", 2),
    Sketcher.Constraint("Horizontal", 3),
    Sketcher.Constraint("Vertical", 4),
    Sketcher.Constraint("Horizontal", 5),
    Sketcher.Constraint("Vertical", 6),
    Sketcher.Constraint("Horizontal", 7),
    Sketcher.Constraint("Vertical", 8),
    Sketcher.Constraint("Horizontal", 9),
    Sketcher.Constraint("Vertical", 10),
    Sketcher.Constraint("Horizontal", 11),
    Sketcher.Constraint("Horizontal", 3, 2, 6, 2),
    Sketcher.Constraint("Vertical", 6, 2, 9, 2),
    Sketcher.Constraint("DistanceX", 1, 1, 1, 2, 300.0),
    Sketcher.Constraint("DistanceX", 3, 2, 3, 1, 2800.0),
    Sketcher.Constraint("DistanceX", 5, 2, 5, 1, 200.0),
    Sketcher.Constraint("DistanceX", 7, 2, 7, 1, 1500.0),
    Sketcher.Constraint("DistanceY", 0, 2, 0, 1, 850.0),
    Sketcher.Constraint("DistanceY", 2, 2, 2, 1, 1350.0),
    Sketcher.Constraint("DistanceY", 4, 1, 4, 2, 880.0),
    Sketcher.Constraint("DistanceY", 8, 1, 8, 2, 2760.0),
    Sketcher.Constraint("DistanceX", -1, 1, 0, 2, 6200.0),
    Sketcher.Constraint("DistanceY", 0, 2, -1, 1, 6950.0),
])
pad16 = body10.newObject("PartDesign::Pad", "Pad015")
pad16.Profile = sketch17
pad16.Length = 50
pad16.Reversed = True
body11 = doc.addObject("PartDesign::Body", "Body010")

# Sketch on XZ plane
sketch18 = body11.newObject("Sketcher::SketchObject", "Sketch017")
sketch18.AttachmentSupport = (doc.getObject("XZ_Plane010"), [""])
sketch18.MapMode = "FlatFace"
add_polygon(sketch18, [(100, -8300), (100, -6620), (2000, -6620), (2000, -7320), (1850, -7320), (1850, -8300)])  # lines 0-5
sketch18.addConstraint([
    Sketcher.Constraint("Vertical", 0),
    Sketcher.Constraint("Horizontal", 1),
    Sketcher.Constraint("Vertical", 2),
    Sketcher.Constraint("Horizontal", 3),
    Sketcher.Constraint("Vertical", 4),
    Sketcher.Constraint("Horizontal", 5),
    Sketcher.Constraint("DistanceX", 1, 1, 1, 2, 1900.0),
    Sketcher.Constraint("DistanceX", 3, 2, 3, 1, 150.0),
    Sketcher.Constraint("DistanceY", 0, 1, 0, 2, 1680.0),
    Sketcher.Constraint("DistanceY", 2, 2, 2, 1, 700.0),
    Sketcher.Constraint("DistanceX", -1, 1, 0, 2, 100.0),
    Sketcher.Constraint("DistanceY", 0, 2, -1, 1, 6620.0),
])
pad17 = body11.newObject("PartDesign::Pad", "Pad016")
pad17.Profile = sketch18
pad17.Length = 50
pad17.Reversed = True
body12 = doc.addObject("PartDesign::Body", "Body011")

# Sketch on XZ plane
sketch19 = body12.newObject("Sketcher::SketchObject", "Sketch018")
sketch19.AttachmentSupport = (doc.getObject("XZ_Plane011"), [""])
sketch19.MapMode = "FlatFace"
sketch19.AttachmentOffset = App.Placement(App.Vector(0, 0, -50), App.Rotation())
add_polygon(sketch19, [(850, -6490), (850, -5540), (930, -5540), (930, -6490)])  # lines 0-3
sketch19.addConstraint([
    Sketcher.Constraint("Vertical", 0),
    Sketcher.Constraint("Horizontal", 1),
    Sketcher.Constraint("Vertical", 2),
    Sketcher.Constraint("Horizontal", 3),
    Sketcher.Constraint("DistanceX", 1, 1, 1, 2, 80.0),
    Sketcher.Constraint("DistanceY", 0, 1, 0, 2, 950.0),
    Sketcher.Constraint("DistanceX", -1, 1, 0, 2, 850.0),
    Sketcher.Constraint("DistanceY", 0, 2, -1, 1, 5540.0),
])
pad18 = body12.newObject("PartDesign::Pad", "Pad017")
pad18.Profile = sketch19
pad18.Length = 1200
pad18.Reversed = True

# Sketch on YZ plane
sketch20 = body12.newObject("Sketcher::SketchObject", "Sketch019")
sketch20.AttachmentSupport = (doc.getObject("YZ_Plane011"), [""])
sketch20.MapMode = "FlatFace"
sketch20.AttachmentOffset = App.Placement(App.Vector(0, 0, 930), App.Rotation())
add_polygon(sketch20, [(440, -5835), (80, -5835), (80, -6195), (440, -6195)])  # lines 0-3
add_polygon(sketch20, [(1040, -5940), (950, -5940), (950, -6090), (1040, -6090)])  # lines 4-7
add_polygon(sketch20, [(550, -6280), (50, -6280), (50, -6480), (550, -6480)])  # lines 8-11
sketch20.addConstraint([
    Sketcher.Constraint("Horizontal", 0),
    Sketcher.Constraint("Vertical", 1),
    Sketcher.Constraint("Horizontal", 2),
    Sketcher.Constraint("Vertical", 3),
    Sketcher.Constraint("Horizontal", 4),
    Sketcher.Constraint("Vertical", 5),
    Sketcher.Constraint("Horizontal", 6),
    Sketcher.Constraint("Vertical", 7),
    Sketcher.Constraint("Horizontal", 8),
    Sketcher.Constraint("Vertical", 9),
    Sketcher.Constraint("Horizontal", 10),
    Sketcher.Constraint("Vertical", 11),
    Sketcher.Constraint("Equal", 2, 1),
    Sketcher.Constraint("DistanceX", 0, 2, 0, 1, 360.0),
    Sketcher.Constraint("DistanceX", 4, 2, 4, 1, 90.0),
    Sketcher.Constraint("DistanceX", 8, 2, 8, 1, 500.0),
    Sketcher.Constraint("DistanceY", 5, 2, 5, 1, 150.0),
    Sketcher.Constraint("DistanceY", 9, 2, 9, 1, 200.0),
    Sketcher.Constraint("DistanceX", -1, 1, 0, 2, 80.0),
    Sketcher.Constraint("DistanceY", 0, 2, -1, 1, 5835.0),
    Sketcher.Constraint("DistanceX", -1, 1, 4, 2, 950.0),
    Sketcher.Constraint("DistanceY", 4, 2, -1, 1, 5940.0),
    Sketcher.Constraint("DistanceX", -1, 1, 8, 2, 50.0),
    Sketcher.Constraint("DistanceY", 8, 2, -1, 1, 6280.0),
])
pocket2 = body12.newObject("PartDesign::Pocket", "Pocket001")
pocket2.Profile = sketch20
pocket2.Length = 80
body13 = doc.addObject("PartDesign::Body", "Body012")

# Sketch on XZ plane
sketch21 = body13.newObject("Sketcher::SketchObject", "Sketch020")
sketch21.AttachmentSupport = (doc.getObject("XZ_Plane012"), [""])
sketch21.MapMode = "FlatFace"
add_polygon(sketch21, [(930, -6490), (930, -5540), (1850, -5540), (1850, -5790), (2000, -5790), (2000, -6490)])  # lines 0-5
sketch21.addConstraint([
    Sketcher.Constraint("Vertical", 0),
    Sketcher.Constraint("Horizontal", 1),
    Sketcher.Constraint("Vertical", 2),
    Sketcher.Constraint("Horizontal", 3),
    Sketcher.Constraint("Vertical", 4),
    Sketcher.Constraint("Horizontal", 5),
    Sketcher.Constraint("DistanceX", 1, 1, 1, 2, 920.0),
    Sketcher.Constraint("DistanceX", 3, 1, 3, 2, 150.0),
    Sketcher.Constraint("DistanceY", 0, 1, 0, 2, 950.0),
    Sketcher.Constraint("DistanceY", 2, 2, 2, 1, 250.0),
    Sketcher.Constraint("DistanceX", -1, 1, 0, 2, 930.0),
    Sketcher.Constraint("DistanceY", 0, 2, -1, 1, 5540.0),
])
pad19 = body13.newObject("PartDesign::Pad", "Pad018")
pad19.Profile = sketch21
pad19.Length = 50
pad19.Reversed = True

doc.recompute()
